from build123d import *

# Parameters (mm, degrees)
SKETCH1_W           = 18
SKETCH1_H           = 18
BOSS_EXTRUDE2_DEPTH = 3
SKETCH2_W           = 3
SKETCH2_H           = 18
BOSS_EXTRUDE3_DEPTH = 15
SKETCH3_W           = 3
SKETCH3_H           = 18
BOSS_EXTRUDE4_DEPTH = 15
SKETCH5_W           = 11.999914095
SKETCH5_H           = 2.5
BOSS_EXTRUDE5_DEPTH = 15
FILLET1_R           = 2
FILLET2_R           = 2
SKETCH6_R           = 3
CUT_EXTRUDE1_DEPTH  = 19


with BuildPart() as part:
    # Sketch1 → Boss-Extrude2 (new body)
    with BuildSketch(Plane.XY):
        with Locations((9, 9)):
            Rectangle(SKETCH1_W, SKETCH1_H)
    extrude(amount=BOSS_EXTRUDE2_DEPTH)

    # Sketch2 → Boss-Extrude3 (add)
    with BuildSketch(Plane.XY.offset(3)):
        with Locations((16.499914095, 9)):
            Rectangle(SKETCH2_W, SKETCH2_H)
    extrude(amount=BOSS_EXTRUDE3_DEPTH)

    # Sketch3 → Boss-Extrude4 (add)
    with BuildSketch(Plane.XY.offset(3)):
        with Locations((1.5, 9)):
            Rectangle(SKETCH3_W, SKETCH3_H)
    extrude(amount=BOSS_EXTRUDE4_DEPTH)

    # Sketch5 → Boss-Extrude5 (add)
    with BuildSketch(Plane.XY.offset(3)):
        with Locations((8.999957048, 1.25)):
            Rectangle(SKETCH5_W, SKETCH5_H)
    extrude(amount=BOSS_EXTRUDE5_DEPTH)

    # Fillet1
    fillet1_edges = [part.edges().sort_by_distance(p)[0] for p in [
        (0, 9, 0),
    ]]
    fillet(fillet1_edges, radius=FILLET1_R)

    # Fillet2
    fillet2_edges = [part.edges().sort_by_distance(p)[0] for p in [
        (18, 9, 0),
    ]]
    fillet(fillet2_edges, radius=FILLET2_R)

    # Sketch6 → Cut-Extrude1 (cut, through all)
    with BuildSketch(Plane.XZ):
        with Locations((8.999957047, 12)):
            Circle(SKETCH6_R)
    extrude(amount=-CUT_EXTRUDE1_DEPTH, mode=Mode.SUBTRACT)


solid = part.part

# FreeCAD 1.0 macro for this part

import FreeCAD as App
import Part
import Sketcher

V = App.Vector


def edges_at(feature, points):
    """Names of the edges that pass closest to the given points."""
    edges = feature.Shape.Edges
    near = lambda p: min(range(len(edges)), key=lambda i: edges[i].distToShape(Part.Vertex(*p))[0])
    return sorted({f"Edge{near(p) + 1}" for p in points})


def add_polygon(sketch, points):
    """Adds a closed chain of lines whose ends are joined by coincident constraints."""
    first, n = sketch.GeometryCount, len(points)
    for a, b in zip(points, points[1:] + points[:1]):
        sketch.addGeometry(Part.LineSegment(App.Vector(*a, 0), App.Vector(*b, 0)), False)
    for i in range(n):
        sketch.addConstraint(Sketcher.Constraint("Coincident", first + i, 2, first + (i + 1) % n, 1))

doc = App.newDocument("Part")
body = doc.addObject("PartDesign::Body", "Body")

sketch1 = body.newObject("Sketcher::SketchObject", "Sketch")
sketch1.AttachmentSupport = (doc.getObject("XY_Plane"), [""])
sketch1.MapMode = "FlatFace"
add_polygon(sketch1, [(0, 18), (0, 0), (18, 0), (18, 18)])
sketch1.addConstraint([
    Sketcher.Constraint("Vertical", 0),
    Sketcher.Constraint("Horizontal", 1),
    Sketcher.Constraint("Vertical", 2),
    Sketcher.Constraint("Horizontal", 3),
    Sketcher.Constraint("Coincident", 0, 2, -1, 1),
    Sketcher.Constraint("Equal", 3, 0),
    Sketcher.Constraint("DistanceX", 1, 1, 1, 2, 18.0),
])
pad1 = body.newObject("PartDesign::Pad", "Pad")
pad1.Profile = sketch1
pad1.Length = 3

sketch2 = body.newObject("Sketcher::SketchObject", "Sketch001")
sketch2.AttachmentSupport = (doc.getObject("XY_Plane"), [""])
sketch2.MapMode = "FlatFace"
sketch2.AttachmentOffset = App.Placement(V(0, 0, 3), App.Rotation())
add_polygon(sketch2, [(15, 18), (15, 0), (18, 0), (18, 18)])
sketch2.addConstraint([
    Sketcher.Constraint("Vertical", 0),
    Sketcher.Constraint("Horizontal", 1),
    Sketcher.Constraint("Vertical", 2),
    Sketcher.Constraint("Horizontal", 3),
    Sketcher.Constraint("PointOnObject", 0, 2, -1),
    Sketcher.Constraint("DistanceX", 1, 1, 1, 2, 3.0),
    Sketcher.Constraint("DistanceY", 0, 2, 0, 1, 18.0),
    Sketcher.Constraint("DistanceX", -1, 1, 0, 2, 14.999914),
])
pad2 = body.newObject("PartDesign::Pad", "Pad001")
pad2.Profile = sketch2
pad2.Length = 15

sketch3 = body.newObject("Sketcher::SketchObject", "Sketch002")
sketch3.AttachmentSupport = (doc.getObject("XY_Plane"), [""])
sketch3.MapMode = "FlatFace"
sketch3.AttachmentOffset = App.Placement(V(0, 0, 3), App.Rotation())
add_polygon(sketch3, [(0, 18), (0, 0), (3, 0), (3, 18)])
sketch3.addConstraint([
    Sketcher.Constraint("Vertical", 0),
    Sketcher.Constraint("Horizontal", 1),
    Sketcher.Constraint("Vertical", 2),
    Sketcher.Constraint("Horizontal", 3),
    Sketcher.Constraint("Coincident", 0, 2, -1, 1),
    Sketcher.Constraint("DistanceX", 1, 1, 1, 2, 3.0),
    Sketcher.Constraint("DistanceY", 0, 2, 0, 1, 18.0),
])
pad3 = body.newObject("PartDesign::Pad", "Pad002")
pad3.Profile = sketch3
pad3.Length = 15

sketch4 = body.newObject("Sketcher::SketchObject", "Sketch003")
sketch4.AttachmentSupport = (doc.getObject("XY_Plane"), [""])
sketch4.MapMode = "FlatFace"
sketch4.AttachmentOffset = App.Placement(V(0, 0, 3), App.Rotation())
add_polygon(sketch4, [(3, 2.5), (3, 0), (15, 0), (15, 2.5)])
sketch4.addConstraint([
    Sketcher.Constraint("Vertical", 0),
    Sketcher.Constraint("Horizontal", 1),
    Sketcher.Constraint("Vertical", 2),
    Sketcher.Constraint("Horizontal", 3),
    Sketcher.Constraint("PointOnObject", 0, 2, -1),
    Sketcher.Constraint("DistanceY", 0, 2, 0, 1, 2.5),
    Sketcher.Constraint("DistanceX", -1, 1, 0, 2, 3.0),
    Sketcher.Constraint("DistanceX", 1, 1, 1, 2, 11.999914),
])
pad4 = body.newObject("PartDesign::Pad", "Pad003")
pad4.Profile = sketch4
pad4.Length = 15
doc.recompute()

fillet = body.newObject("PartDesign::Fillet", "Fillet")
fillet.Base = (pad4, edges_at(pad4, [(0, 9, 0)]))
fillet.Radius = 2
doc.recompute()

fillet2 = body.newObject("PartDesign::Fillet", "Fillet001")
fillet2.Base = (fillet, edges_at(fillet, [(18, 9, 0)]))
fillet2.Radius = 2

sketch5 = body.newObject("Sketcher::SketchObject", "Sketch004")
sketch5.AttachmentSupport = (doc.getObject("XZ_Plane"), [""])
sketch5.MapMode = "FlatFace"
sketch5.addGeometry(Part.Circle(V(9, 12, 0), V(0, 0, 1), 3), False)
sketch5.addConstraint([
    Sketcher.Constraint("Diameter", 0, 6.0),
    Sketcher.Constraint("DistanceY", -1, 1, 0, 3, 12.0),
    Sketcher.Constraint("DistanceX", -1, 1, 0, 3, 8.999957),
])
pocket1 = body.newObject("PartDesign::Pocket", "Pocket")
pocket1.Profile = sketch5
pocket1.Type = "ThroughAll"

doc.recompute()
